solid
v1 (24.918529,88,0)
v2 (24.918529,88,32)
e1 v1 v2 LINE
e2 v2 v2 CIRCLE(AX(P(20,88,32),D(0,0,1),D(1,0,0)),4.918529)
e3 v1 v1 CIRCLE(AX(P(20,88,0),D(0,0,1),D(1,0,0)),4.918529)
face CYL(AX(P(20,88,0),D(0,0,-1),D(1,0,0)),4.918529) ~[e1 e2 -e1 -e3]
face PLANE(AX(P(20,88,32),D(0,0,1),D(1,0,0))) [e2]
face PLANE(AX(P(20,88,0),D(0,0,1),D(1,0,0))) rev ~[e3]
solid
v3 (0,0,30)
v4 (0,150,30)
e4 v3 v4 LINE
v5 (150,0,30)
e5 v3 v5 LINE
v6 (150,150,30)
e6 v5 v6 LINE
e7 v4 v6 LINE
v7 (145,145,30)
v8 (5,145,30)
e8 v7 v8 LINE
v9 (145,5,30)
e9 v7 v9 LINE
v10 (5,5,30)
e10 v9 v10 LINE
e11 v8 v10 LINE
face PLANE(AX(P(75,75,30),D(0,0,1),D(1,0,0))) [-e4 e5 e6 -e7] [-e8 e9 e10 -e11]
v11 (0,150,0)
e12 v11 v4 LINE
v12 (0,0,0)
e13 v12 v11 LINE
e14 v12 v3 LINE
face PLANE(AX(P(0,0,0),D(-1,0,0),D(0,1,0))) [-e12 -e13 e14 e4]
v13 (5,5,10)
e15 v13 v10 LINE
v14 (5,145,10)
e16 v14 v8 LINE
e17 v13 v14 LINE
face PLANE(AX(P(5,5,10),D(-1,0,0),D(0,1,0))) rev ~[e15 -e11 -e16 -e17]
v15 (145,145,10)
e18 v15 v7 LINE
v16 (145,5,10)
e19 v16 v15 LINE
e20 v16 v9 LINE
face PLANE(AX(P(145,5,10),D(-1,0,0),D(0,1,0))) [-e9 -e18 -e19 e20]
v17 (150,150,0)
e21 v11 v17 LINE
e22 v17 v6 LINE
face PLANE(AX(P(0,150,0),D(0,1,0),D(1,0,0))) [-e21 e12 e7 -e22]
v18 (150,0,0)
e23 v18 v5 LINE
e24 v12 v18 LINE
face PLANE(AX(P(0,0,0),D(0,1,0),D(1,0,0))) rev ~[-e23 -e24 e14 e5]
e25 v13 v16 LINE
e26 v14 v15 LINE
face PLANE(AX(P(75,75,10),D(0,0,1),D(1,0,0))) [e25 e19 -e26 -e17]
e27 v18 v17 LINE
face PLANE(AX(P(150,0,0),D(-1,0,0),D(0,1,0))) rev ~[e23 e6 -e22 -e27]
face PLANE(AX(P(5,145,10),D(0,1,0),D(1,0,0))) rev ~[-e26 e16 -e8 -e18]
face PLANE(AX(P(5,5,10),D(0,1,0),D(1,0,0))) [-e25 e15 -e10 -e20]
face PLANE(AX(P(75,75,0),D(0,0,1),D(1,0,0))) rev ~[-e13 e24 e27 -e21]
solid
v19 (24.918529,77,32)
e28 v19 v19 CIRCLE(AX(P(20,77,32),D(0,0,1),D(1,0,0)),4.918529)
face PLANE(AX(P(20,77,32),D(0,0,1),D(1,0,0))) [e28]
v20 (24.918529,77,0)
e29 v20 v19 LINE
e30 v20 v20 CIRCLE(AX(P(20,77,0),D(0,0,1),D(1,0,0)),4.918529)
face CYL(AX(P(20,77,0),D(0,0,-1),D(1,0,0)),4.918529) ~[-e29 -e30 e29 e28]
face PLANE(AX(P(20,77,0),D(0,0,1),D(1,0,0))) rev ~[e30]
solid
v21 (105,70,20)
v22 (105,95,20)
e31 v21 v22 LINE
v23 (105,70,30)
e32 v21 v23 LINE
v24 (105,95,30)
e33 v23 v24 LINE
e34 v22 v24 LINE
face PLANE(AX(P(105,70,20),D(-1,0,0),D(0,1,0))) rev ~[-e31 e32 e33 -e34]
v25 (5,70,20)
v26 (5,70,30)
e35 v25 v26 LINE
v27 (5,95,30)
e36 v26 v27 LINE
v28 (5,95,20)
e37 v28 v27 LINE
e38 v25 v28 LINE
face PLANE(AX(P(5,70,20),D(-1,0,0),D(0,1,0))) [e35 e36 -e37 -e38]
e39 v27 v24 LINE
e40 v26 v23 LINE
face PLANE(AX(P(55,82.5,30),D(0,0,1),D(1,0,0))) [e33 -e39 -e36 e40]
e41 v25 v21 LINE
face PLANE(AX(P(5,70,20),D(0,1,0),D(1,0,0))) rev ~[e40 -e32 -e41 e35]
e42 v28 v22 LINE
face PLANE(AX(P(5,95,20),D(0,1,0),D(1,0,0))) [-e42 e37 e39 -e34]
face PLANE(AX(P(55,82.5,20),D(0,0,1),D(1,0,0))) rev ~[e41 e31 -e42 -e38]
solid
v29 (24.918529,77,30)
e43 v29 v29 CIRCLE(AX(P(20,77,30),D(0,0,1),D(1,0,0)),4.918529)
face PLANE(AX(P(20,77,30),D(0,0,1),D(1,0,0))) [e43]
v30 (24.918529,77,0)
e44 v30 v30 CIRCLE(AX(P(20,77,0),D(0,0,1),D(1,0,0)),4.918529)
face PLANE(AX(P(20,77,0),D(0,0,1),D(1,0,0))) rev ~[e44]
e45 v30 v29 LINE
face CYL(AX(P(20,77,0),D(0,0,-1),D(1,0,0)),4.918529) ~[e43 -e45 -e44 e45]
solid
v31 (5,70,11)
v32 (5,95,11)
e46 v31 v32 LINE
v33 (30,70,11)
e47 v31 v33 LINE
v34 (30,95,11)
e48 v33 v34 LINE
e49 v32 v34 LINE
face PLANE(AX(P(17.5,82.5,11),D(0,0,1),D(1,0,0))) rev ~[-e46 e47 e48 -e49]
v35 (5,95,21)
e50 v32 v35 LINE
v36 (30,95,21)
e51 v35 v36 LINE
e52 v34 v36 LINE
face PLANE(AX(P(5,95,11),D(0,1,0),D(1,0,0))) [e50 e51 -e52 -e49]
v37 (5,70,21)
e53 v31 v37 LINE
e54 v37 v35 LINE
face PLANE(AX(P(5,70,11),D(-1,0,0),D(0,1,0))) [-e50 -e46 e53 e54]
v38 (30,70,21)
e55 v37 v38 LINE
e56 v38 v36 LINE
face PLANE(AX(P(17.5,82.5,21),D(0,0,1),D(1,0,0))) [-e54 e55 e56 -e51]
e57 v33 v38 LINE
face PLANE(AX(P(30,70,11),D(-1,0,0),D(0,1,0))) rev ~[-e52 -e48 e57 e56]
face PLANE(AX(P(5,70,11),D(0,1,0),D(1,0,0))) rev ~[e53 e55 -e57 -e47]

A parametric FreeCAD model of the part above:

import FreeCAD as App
import Part
import Sketcher


def add_polygon(sketch, points):
    """Adds a closed chain of lines whose ends are joined by coincident constraints."""
    first, n = sketch.GeometryCount, len(points)
    for a, b in zip(points, points[1:] + points[:1]):
        sketch.addGeometry(Part.LineSegment(App.Vector(*a, 0), App.Vector(*b, 0)), False)
    for i in range(n):
        sketch.addConstraint(Sketcher.Constraint("Coincident", first + i, 2, first + (i + 1) % n, 1))

doc = App.newDocument("Part")
body = doc.addObject("PartDesign::Body", "Body")

sketch1 = body.newObject("Sketcher::SketchObject", "Sketch")
sketch1.AttachmentSupport = (doc.getObject("XY_Plane"), [""])
sketch1.MapMode = "FlatFace"
sketch1.AttachmentOffset = App.Placement(App.Vector(0, 0, 10), App.Rotation())
add_polygon(sketch1, [(5, 145), (5, 5), (145, 5), (145, 145)])
sketch1.addConstraint([
    Sketcher.Constraint("Vertical", 0),
    Sketcher.Constraint("Horizontal", 1),
    Sketcher.Constraint("Vertical", 2),
    Sketcher.Constraint("Horizontal", 3),
    Sketcher.Constraint("Equal", 3, 0),
    Sketcher.Constraint("DistanceX", 1, 1, 1, 2, 140.0),
    Sketcher.Constraint("DistanceX", -1, 1, 0, 2, 5.0),
    Sketcher.Constraint("DistanceY", -1, 1, 0, 2, 5.0),
])
pad1 = body.newObject("PartDesign::Pad", "Pad")
pad1.Profile = sketch1
pad1.Length = 50
body2 = doc.addObject("PartDesign::Body", "Body001")

sketch2 = body2.newObject("Sketcher::SketchObject", "Sketch001")
sketch2.AttachmentSupport = (doc.getObject("XY_Plane001"), [""])
sketch2.MapMode = "FlatFace"
add_polygon(sketch2, [(0, 150), (0, 0), (150, 0), (150, 150)])
sketch2.addConstraint([
    Sketcher.Constraint("Vertical", 0),
    Sketcher.Constraint("Horizontal", 1),
    Sketcher.Constraint("Vertical", 2),
    Sketcher.Constraint("Horizontal", 3),
    Sketcher.Constraint("Coincident", 0, 2, -1, 1),
    Sketcher.Constraint("Equal", 3, 0),
    Sketcher.Constraint("DistanceX", 1, 1, 1, 2, 150.0),
])
pad2 = body2.newObject("PartDesign::Pad", "Pad001")
pad2.Profile = sketch2
pad2.Length = 30
doc.recompute()

boolean = body2.newObject("PartDesign::Boolean", "Boolean")
boolean.Type = "Cut"
boolean.addObjects([body])
body3 = doc.addObject("PartDesign::Body", "Body002")

sketch3 = body3.newObject("Sketcher::SketchObject", "Sketch002")
sketch3.AttachmentSupport = (doc.getObject("XY_Plane002"), [""])
sketch3.MapMode = "FlatFace"
sketch3.AttachmentOffset = App.Placement(App.Vector(0, 0, 20), App.Rotation())
add_polygon(sketch3, [(5, 95), (5, 70), (105, 70), (105, 95)])
sketch3.addConstraint([
    Sketcher.Constraint("Vertical", 0),
    Sketcher.Constraint("Horizontal", 1),
    Sketcher.Constraint("Vertical", 2),
    Sketcher.Constraint("Horizontal", 3),
    Sketcher.Constraint("DistanceX", 1, 1, 1, 2, 100.0),
    Sketcher.Constraint("DistanceY", 0, 2, 0, 1, 25.0),
    Sketcher.Constraint("DistanceX", -1, 1, 0, 2, 5.0),
    Sketcher.Constraint("DistanceY", -1, 1, 0, 2, 70.0),
])
pad3 = body3.newObject("PartDesign::Pad", "Pad002")
pad3.Profile = sketch3
pad3.Length = 10
body4 = doc.addObject("PartDesign::Body", "Body003")

sketch4 = body4.newObject("Sketcher::SketchObject", "Sketch003")
sketch4.AttachmentSupport = (doc.getObject("XY_Plane003"), [""])
sketch4.MapMode = "FlatFace"
sketch4.AttachmentOffset = App.Placement(App.Vector(0, 0, 11), App.Rotation())
add_polygon(sketch4, [(5, 95), (5, 70), (30, 70), (30, 95)])
sketch4.addConstraint([
    Sketcher.Constraint("Vertical", 0),
    Sketcher.Constraint("Horizontal", 1),
    Sketcher.Constraint("Vertical", 2),
    Sketcher.Constraint("Horizontal", 3),
    Sketcher.Constraint("Equal", 3, 0),
    Sketcher.Constraint("DistanceX", 1, 1, 1, 2, 25.0),
    Sketcher.Constraint("DistanceX", -1, 1, 0, 2, 5.0),
    Sketcher.Constraint("DistanceY", -1, 1, 0, 2, 70.0),
])
pad4 = body4.newObject("PartDesign::Pad", "Pad003")
pad4.Profile = sketch4
pad4.Length = 10
body5 = doc.addObject("PartDesign::Body", "Body004")

sketch5 = body5.newObject("Sketcher::SketchObject", "Sketch004")
sketch5.AttachmentSupport = (doc.getObject("XY_Plane004"), [""])
sketch5.MapMode = "FlatFace"
sketch5.addGeometry(Part.Circle(App.Vector(20, 77, 0), App.Vector(0, 0, 1), 4.918529), False)
sketch5.addConstraint([
    Sketcher.Constraint("DistanceX", -1, 1, 0, 3, 20.0),
    Sketcher.Constraint("DistanceY", -1, 1, 0, 3, 77.0),
    Sketcher.Constraint("Diameter", 0, 9.837058),
])
pad5 = body5.newObject("PartDesign::Pad", "Pad004")
pad5.Profile = sketch5
pad5.Length = 30
body6 = doc.addObject("PartDesign::Body", "Body005")

sketch6 = body6.newObject("Sketcher::SketchObject", "Sketch005")
sketch6.AttachmentSupport = (doc.getObject("XY_Plane005"), [""])
sketch6.MapMode = "FlatFace"
sketch6.addGeometry(Part.Circle(App.Vector(20, 77, 0), App.Vector(0, 0, 1), 4.918529), False)
sketch6.addConstraint([
    Sketcher.Constraint("DistanceX", -1, 1, 0, 3, 20.0),
    Sketcher.Constraint("DistanceY", -1, 1, 0, 3, 77.0),
    Sketcher.Constraint("Diameter", 0, 9.837058),
])
pad6 = body6.newObject("PartDesign::Pad", "Pad005")
pad6.Profile = sketch6
pad6.Length = 32
body7 = doc.addObject("PartDesign::Body", "Body006")

sketch7 = body7.newObject("Sketcher::SketchObject", "Sketch006")
sketch7.AttachmentSupport = (doc.getObject("XY_Plane006"), [""])
sketch7.MapMode = "FlatFace"
sketch7.addGeometry(Part.Circle(App.Vector(20, 88, 0), App.Vector(0, 0, 1), 4.918529), False)
sketch7.addConstraint([
    Sketcher.Constraint("DistanceX", -1, 1, 0, 3, 20.0),
    Sketcher.Constraint("DistanceY", -1, 1, 0, 3, 88.0),
    Sketcher.Constraint("Diameter", 0, 9.837058),
])
pad7 = body7.newObject("PartDesign::Pad", "Pad006")
pad7.Profile = sketch7
pad7.Length = 32

doc.recompute()
